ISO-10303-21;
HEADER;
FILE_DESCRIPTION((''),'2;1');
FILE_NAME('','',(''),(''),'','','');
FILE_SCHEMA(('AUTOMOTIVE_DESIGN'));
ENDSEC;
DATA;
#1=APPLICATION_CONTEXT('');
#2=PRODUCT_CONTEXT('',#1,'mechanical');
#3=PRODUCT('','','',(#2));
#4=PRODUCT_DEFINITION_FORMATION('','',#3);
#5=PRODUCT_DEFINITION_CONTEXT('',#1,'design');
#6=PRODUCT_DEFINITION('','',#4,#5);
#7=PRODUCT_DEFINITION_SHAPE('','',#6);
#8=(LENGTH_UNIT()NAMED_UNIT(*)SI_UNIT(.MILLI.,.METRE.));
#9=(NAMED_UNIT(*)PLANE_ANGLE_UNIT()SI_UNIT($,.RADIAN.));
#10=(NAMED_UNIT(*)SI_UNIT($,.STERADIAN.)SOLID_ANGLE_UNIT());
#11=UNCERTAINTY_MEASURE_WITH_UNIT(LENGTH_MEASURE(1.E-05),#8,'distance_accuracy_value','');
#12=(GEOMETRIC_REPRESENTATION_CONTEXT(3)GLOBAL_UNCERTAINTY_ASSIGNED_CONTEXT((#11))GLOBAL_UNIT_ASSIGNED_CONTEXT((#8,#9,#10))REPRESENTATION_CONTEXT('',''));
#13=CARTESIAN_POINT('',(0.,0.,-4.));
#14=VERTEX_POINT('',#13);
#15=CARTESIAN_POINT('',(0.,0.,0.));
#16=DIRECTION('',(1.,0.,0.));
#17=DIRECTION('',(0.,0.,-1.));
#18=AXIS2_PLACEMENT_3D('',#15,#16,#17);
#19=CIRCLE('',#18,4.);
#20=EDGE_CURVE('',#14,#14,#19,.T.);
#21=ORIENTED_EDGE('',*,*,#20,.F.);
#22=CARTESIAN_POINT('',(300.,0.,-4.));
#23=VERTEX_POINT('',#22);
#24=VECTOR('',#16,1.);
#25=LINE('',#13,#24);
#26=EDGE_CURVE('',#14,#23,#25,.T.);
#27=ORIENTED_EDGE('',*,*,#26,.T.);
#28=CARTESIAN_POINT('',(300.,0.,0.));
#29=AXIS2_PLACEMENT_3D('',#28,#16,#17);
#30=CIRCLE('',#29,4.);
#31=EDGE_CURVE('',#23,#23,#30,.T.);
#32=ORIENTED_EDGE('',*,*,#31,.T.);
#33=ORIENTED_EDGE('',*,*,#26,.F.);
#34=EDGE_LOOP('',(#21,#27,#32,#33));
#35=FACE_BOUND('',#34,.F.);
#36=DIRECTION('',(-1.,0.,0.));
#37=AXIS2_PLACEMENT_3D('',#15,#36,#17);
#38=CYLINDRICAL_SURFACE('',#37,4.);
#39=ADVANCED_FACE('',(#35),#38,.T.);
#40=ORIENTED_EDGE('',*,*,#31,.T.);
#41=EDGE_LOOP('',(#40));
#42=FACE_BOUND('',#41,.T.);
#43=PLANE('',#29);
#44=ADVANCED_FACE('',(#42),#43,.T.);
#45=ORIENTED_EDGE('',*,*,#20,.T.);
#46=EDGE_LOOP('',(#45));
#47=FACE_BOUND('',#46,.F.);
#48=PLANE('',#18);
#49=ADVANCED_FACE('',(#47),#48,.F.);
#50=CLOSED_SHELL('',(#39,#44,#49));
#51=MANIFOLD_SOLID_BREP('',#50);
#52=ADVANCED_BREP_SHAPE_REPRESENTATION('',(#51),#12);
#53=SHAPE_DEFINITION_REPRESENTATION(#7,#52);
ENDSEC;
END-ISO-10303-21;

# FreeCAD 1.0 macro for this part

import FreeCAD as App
import Part
import Sketcher
Q = App.Units.Quantity

doc = App.newDocument("Part")
body = doc.addObject("PartDesign::Body", "Body")

# Sketch on YZ plane
sketch1 = doc.addObject("Sketcher::SketchObject", "Sketch")
body.addObject(sketch1)
sketch1.AttachmentSupport = (doc.YZ_Plane, [""])
sketch1.MapMode = "FlatFace"
sketch1.addGeometry(Part.Circle(App.Vector(0, 0, 0), App.Vector(0, 0, 1), 4), False)
sketch1.addConstraint([
    Sketcher.Constraint("Coincident", 0, 3, -1, 1),
    Sketcher.Constraint("Diameter", 0, Q("8 mm")),
])
pad1 = doc.addObject("PartDesign::Pad", "Pad")
body.addObject(pad1)
pad1.Profile = sketch1
pad1.Length = 300

doc.recompute()
